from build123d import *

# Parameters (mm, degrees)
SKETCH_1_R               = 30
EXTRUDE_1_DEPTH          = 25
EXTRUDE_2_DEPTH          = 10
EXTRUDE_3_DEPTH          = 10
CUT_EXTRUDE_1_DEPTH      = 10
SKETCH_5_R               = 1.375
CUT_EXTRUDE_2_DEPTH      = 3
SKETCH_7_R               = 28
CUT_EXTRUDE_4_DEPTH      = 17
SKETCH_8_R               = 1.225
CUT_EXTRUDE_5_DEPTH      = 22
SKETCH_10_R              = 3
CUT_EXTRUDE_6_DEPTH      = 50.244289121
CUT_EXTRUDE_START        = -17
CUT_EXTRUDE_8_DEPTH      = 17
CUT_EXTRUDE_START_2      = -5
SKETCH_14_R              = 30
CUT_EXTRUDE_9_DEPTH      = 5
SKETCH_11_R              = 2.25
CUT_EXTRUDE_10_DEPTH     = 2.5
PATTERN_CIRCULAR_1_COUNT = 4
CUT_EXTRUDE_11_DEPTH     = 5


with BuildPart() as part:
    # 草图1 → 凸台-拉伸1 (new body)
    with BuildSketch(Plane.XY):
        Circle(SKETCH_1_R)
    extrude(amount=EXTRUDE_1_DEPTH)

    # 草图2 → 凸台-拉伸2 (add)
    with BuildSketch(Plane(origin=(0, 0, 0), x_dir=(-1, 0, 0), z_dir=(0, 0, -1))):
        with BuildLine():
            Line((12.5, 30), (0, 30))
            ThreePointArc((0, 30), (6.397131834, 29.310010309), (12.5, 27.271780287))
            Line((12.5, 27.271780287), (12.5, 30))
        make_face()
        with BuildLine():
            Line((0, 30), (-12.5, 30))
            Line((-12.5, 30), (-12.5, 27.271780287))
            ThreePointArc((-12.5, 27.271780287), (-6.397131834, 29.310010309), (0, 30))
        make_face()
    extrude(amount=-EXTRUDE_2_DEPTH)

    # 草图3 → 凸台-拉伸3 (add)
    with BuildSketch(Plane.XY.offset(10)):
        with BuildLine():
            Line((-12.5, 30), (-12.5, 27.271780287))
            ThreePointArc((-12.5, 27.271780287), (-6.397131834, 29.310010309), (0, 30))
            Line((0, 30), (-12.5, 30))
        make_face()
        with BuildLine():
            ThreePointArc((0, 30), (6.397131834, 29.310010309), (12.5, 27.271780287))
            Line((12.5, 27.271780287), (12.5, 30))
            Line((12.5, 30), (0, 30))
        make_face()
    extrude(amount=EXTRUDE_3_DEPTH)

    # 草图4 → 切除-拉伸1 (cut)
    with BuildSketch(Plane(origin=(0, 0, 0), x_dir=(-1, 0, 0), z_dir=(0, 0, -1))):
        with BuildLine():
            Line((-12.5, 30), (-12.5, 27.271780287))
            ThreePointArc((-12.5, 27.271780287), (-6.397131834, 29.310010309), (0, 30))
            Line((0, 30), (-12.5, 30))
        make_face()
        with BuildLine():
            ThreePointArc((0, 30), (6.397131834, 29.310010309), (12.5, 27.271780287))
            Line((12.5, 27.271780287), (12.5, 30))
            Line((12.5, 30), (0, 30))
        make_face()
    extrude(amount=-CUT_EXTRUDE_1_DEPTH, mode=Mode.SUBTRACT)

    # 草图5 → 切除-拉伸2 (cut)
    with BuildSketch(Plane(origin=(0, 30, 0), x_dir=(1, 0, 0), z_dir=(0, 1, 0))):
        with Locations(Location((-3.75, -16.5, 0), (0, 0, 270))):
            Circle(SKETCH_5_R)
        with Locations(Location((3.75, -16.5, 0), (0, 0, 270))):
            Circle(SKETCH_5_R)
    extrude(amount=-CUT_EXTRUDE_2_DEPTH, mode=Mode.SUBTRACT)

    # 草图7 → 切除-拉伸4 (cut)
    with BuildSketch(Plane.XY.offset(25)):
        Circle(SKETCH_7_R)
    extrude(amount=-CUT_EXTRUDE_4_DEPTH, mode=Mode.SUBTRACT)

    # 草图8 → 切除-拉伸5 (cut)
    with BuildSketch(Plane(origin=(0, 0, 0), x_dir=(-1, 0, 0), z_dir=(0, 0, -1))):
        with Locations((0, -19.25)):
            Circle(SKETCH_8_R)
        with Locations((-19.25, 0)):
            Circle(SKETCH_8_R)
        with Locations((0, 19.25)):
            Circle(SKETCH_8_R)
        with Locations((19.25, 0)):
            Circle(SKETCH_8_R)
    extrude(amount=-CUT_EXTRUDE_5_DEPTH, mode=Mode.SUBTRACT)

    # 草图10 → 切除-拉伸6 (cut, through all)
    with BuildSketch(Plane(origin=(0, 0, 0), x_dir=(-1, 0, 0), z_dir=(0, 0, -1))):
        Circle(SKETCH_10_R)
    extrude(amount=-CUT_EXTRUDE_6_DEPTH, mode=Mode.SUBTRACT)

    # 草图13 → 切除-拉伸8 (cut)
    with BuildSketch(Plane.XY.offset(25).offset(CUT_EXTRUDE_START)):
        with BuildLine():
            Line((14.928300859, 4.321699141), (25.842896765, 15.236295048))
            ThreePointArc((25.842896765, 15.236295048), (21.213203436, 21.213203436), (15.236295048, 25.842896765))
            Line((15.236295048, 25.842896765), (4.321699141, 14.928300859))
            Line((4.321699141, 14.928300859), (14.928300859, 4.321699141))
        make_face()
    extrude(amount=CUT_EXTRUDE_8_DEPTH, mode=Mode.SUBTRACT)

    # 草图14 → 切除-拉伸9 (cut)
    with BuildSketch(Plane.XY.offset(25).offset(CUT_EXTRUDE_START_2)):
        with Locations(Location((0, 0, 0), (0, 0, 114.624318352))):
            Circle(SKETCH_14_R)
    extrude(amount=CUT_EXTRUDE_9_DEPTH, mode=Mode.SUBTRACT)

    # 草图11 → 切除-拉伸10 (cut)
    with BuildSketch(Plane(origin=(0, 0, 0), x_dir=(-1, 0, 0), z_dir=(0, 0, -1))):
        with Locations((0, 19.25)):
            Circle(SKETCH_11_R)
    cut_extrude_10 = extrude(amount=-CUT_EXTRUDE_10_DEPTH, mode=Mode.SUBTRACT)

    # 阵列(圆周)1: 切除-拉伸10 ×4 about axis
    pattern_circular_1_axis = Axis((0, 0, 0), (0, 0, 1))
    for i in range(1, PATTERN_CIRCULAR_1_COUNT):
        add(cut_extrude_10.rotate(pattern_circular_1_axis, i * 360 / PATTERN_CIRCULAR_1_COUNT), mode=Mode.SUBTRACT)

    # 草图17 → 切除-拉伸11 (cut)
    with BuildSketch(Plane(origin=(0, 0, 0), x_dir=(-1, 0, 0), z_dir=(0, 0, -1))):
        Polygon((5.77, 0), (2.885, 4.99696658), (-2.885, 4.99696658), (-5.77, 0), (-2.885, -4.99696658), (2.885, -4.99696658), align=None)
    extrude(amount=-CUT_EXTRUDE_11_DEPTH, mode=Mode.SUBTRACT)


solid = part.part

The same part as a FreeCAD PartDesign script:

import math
import FreeCAD as App
import Part
import Sketcher
from FreeCAD import Vector
Q = App.Units.Quantity

doc = App.newDocument("Part")
body = doc.addObject("PartDesign::Body", "Body")

# Sketch on XY plane
sketch1 = doc.addObject("Sketcher::SketchObject", "Sketch")
body.addObject(sketch1)
sketch1.AttachmentSupport = (doc.XY_Plane, [""])
sketch1.MapMode = "FlatFace"
sketch1.addGeometry(Part.Circle(Vector(0, 0, 0), Vector(0, 0, 1), 30), False)
sketch1.addConstraint([
    Sketcher.Constraint("Coincident", 0, 3, -1, 1),
    Sketcher.Constraint("Diameter", 0, Q("60 mm")),
])
pad1 = doc.addObject("PartDesign::Pad", "Pad")
body.addObject(pad1)
pad1.Profile = sketch1
pad1.Length = 25

# Sketch on XY plane
sketch2 = doc.addObject("Sketcher::SketchObject", "Sketch001")
body.addObject(sketch2)
sketch2.AttachmentSupport = (doc.XY_Plane, [""])
sketch2.MapMode = "FlatFace"
sketch2.addGeometry([
    Part.LineSegment(Vector(-12.5, 30, 0), Vector(0, 30, 0)),  # 0
    Part.ArcOfCircle(Part.Circle(Vector(0, 0, 0), Vector(0, 0, 1), 30), math.radians(90), math.radians(114.624318)),  # 1
    Part.LineSegment(Vector(-12.5, 27.27178, 0), Vector(-12.5, 30, 0)),  # 2
    Part.LineSegment(Vector(0, 30, 0), Vector(12.5, 30, 0)),  # 3
    Part.LineSegment(Vector(12.5, 30, 0), Vector(12.5, 27.27178, 0)),  # 4
    Part.ArcOfCircle(Part.Circle(Vector(0, 0, 0), Vector(0, 0, 1), 30), math.radians(65.375682), math.radians(90)),  # 5
], False)
sketch2.addConstraint([
    Sketcher.Constraint("Tangent", 0, 2, 1, 1),
    Sketcher.Constraint("Coincident", 1, 2, 2, 1),
    Sketcher.Constraint("Coincident", 2, 2, 0, 1),
    Sketcher.Constraint("Coincident", 3, 2, 4, 1),
    Sketcher.Constraint("Coincident", 4, 2, 5, 1),
    Sketcher.Constraint("Tangent", 5, 2, 3, 1),
    Sketcher.Constraint("Horizontal", 0),
    Sketcher.Constraint("Vertical", 2),
    Sketcher.Constraint("Horizontal", 3),
    Sketcher.Constraint("Vertical", 4),
    Sketcher.Constraint("Coincident", 1, 3, -1, 1),
    Sketcher.Constraint("Coincident", 5, 3, -1, 1),
    Sketcher.Constraint("Equal", 1, 5),
    Sketcher.Constraint("Horizontal", 1, 2, 4, 2),
    Sketcher.Constraint("Radius", 1, Q("30 mm")),
    Sketcher.Constraint("DistanceX", 0, 1, 0, 2, Q("12.5 mm")),
])
pad2 = doc.addObject("PartDesign::Pad", "Pad001")
body.addObject(pad2)
pad2.Profile = sketch2
pad2.Length = 10

# Sketch on XY plane
sketch3 = doc.addObject("Sketcher::SketchObject", "Sketch002")
body.addObject(sketch3)
sketch3.AttachmentSupport = (doc.XY_Plane, [""])
sketch3.MapMode = "FlatFace"
sketch3.AttachmentOffset = App.Placement(Vector(0, 0, 10), App.Rotation())
sketch3.addGeometry([
    Part.LineSegment(Vector(-12.5, 30, 0), Vector(-12.5, 27.27178, 0)),  # 0
    Part.ArcOfCircle(Part.Circle(Vector(0, 0, 0), Vector(0, 0, 1), 30), math.radians(90), math.radians(114.624318)),  # 1
    Part.LineSegment(Vector(0, 30, 0), Vector(-12.5, 30, 0)),  # 2
    Part.ArcOfCircle(Part.Circle(Vector(0, 0, 0), Vector(0, 0, 1), 30), math.radians(65.375682), math.radians(90)),  # 3
    Part.LineSegment(Vector(12.5, 27.27178, 0), Vector(12.5, 30, 0)),  # 4
    Part.LineSegment(Vector(12.5, 30, 0), Vector(0, 30, 0)),  # 5
], False)
sketch3.addConstraint([
    Sketcher.Constraint("Coincident", 0, 2, 1, 2),
    Sketcher.Constraint("Tangent", 1, 1, 2, 1),
    Sketcher.Constraint("Coincident", 2, 2, 0, 1),
    Sketcher.Constraint("Coincident", 3, 1, 4, 1),
    Sketcher.Constraint("Coincident", 4, 2, 5, 1),
    Sketcher.Constraint("Tangent", 5, 2, 3, 2),
    Sketcher.Constraint("Vertical", 0),
    Sketcher.Constraint("Horizontal", 2),
    Sketcher.Constraint("Vertical", 4),
    Sketcher.Constraint("Horizontal", 5),
    Sketcher.Constraint("Coincident", 1, 3, -1, 1),
    Sketcher.Constraint("Coincident", 3, 3, -1, 1),
    Sketcher.Constraint("Equal", 1, 3),
    Sketcher.Constraint("Horizontal", 0, 2, 3, 1),
    Sketcher.Constraint("Radius", 1, Q("30 mm")),
    Sketcher.Constraint("DistanceX", 2, 2, 2, 1, Q("12.5 mm")),
])
pad3 = doc.addObject("PartDesign::Pad", "Pad002")
body.addObject(pad3)
pad3.Profile = sketch3
pad3.Length = 10

# Sketch on XY plane
sketch4 = doc.addObject("Sketcher::SketchObject", "Sketch003")
body.addObject(sketch4)
sketch4.AttachmentSupport = (doc.XY_Plane, [""])
sketch4.MapMode = "FlatFace"
sketch4.addGeometry([
    Part.LineSegment(Vector(12.5, 30, 0), Vector(12.5, 27.27178, 0)),  # 0
    Part.ArcOfCircle(Part.Circle(Vector(0, 0, 0), Vector(0, 0, 1), 30), math.radians(65.375682), math.radians(90)),  # 1
    Part.LineSegment(Vector(0, 30, 0), Vector(12.5, 30, 0)),  # 2
    Part.ArcOfCircle(Part.Circle(Vector(0, 0, 0), Vector(0, 0, 1), 30), math.radians(90), math.radians(114.624318)),  # 3
    Part.LineSegment(Vector(-12.5, 27.27178, 0), Vector(-12.5, 30, 0)),  # 4
    Part.LineSegment(Vector(-12.5, 30, 0), Vector(0, 30, 0)),  # 5
], False)
sketch4.addConstraint([
    Sketcher.Constraint("Coincident", 0, 2, 1, 1),
    Sketcher.Constraint("Tangent", 1, 2, 2, 1),
    Sketcher.Constraint("Coincident", 2, 2, 0, 1),
    Sketcher.Constraint("Coincident", 3, 2, 4, 1),
    Sketcher.Constraint("Coincident", 4, 2, 5, 1),
    Sketcher.Constraint("Tangent", 5, 2, 3, 1),
    Sketcher.Constraint("Vertical", 0),
    Sketcher.Constraint("Horizontal", 2),
    Sketcher.Constraint("Vertical", 4),
    Sketcher.Constraint("Horizontal", 5),
    Sketcher.Constraint("Coincident", 1, 3, -1, 1),
    Sketcher.Constraint("Coincident", 3, 3, -1, 1),
    Sketcher.Constraint("Equal", 1, 3),
    Sketcher.Constraint("Horizontal", 0, 2, 3, 2),
    Sketcher.Constraint("Radius", 1, Q("30 mm")),
    Sketcher.Constraint("DistanceX", 2, 1, 2, 2, Q("12.5 mm")),
])
pocket1 = doc.addObject("PartDesign::Pocket", "Pocket")
body.addObject(pocket1)
pocket1.Profile = sketch4
pocket1.Length = 10
pocket1.Reversed = True

# Sketch on XZ plane
sketch5 = doc.addObject("Sketcher::SketchObject", "Sketch004")
body.addObject(sketch5)
sketch5.AttachmentSupport = (doc.XZ_Plane, [""])
sketch5.MapMode = "FlatFace"
sketch5.AttachmentOffset = App.Placement(Vector(0, 0, -30), App.Rotation())
sketch5.addGeometry([
    Part.Circle(Vector(-3.75, 16.5, 0), Vector(0, 0, 1), 1.375),
    Part.Circle(Vector(3.75, 16.5, 0), Vector(0, 0, 1), 1.375),
], False)
sketch5.addConstraint([
    Sketcher.Constraint("Equal", 0, 1),
    Sketcher.Constraint("Symmetric", 0, 3, 1, 3, -2),
    Sketcher.Constraint("Diameter", 0, Q("2.75 mm")),
    Sketcher.Constraint("DistanceY", -1, 1, 0, 3, Q("16.5 mm")),
    Sketcher.Constraint("DistanceX", 0, 3, 1, 3, Q("7.5 mm")),
])
pocket2 = doc.addObject("PartDesign::Pocket", "Pocket001")
body.addObject(pocket2)
pocket2.Profile = sketch5
pocket2.Length = 3
pocket2.Reversed = True

# Sketch on XY plane
sketch6 = doc.addObject("Sketcher::SketchObject", "Sketch005")
body.addObject(sketch6)
sketch6.AttachmentSupport = (doc.XY_Plane, [""])
sketch6.MapMode = "FlatFace"
sketch6.AttachmentOffset = App.Placement(Vector(0, 0, 25), App.Rotation())
sketch6.addGeometry(Part.Circle(Vector(0, 0, 0), Vector(0, 0, 1), 28), False)
sketch6.addConstraint([
    Sketcher.Constraint("Coincident", 0, 3, -1, 1),
    Sketcher.Constraint("Diameter", 0, Q("56 mm")),
])
pocket3 = doc.addObject("PartDesign::Pocket", "Pocket002")
body.addObject(pocket3)
pocket3.Profile = sketch6
pocket3.Length = 17

# Sketch on XY plane
sketch7 = doc.addObject("Sketcher::SketchObject", "Sketch006")
body.addObject(sketch7)
sketch7.AttachmentSupport = (doc.XY_Plane, [""])
sketch7.MapMode = "FlatFace"
sketch7.addGeometry([
    Part.Circle(Vector(0, -19.25, 0), Vector(0, 0, 1), 1.225),
    Part.Circle(Vector(19.25, 0, 0), Vector(0, 0, 1), 1.225),
    Part.Circle(Vector(0, 19.25, 0), Vector(0, 0, 1), 1.225),
    Part.Circle(Vector(-19.25, 0, 0), Vector(0, 0, 1), 1.225),
], False)
sketch7.addConstraint([
    Sketcher.Constraint("Equal", 0, 1),
    Sketcher.Constraint("Equal", 1, 2),
    Sketcher.Constraint("Equal", 2, 3),
    Sketcher.Constraint("Symmetric", 0, 3, 2, 3, -1, 1),
    Sketcher.Constraint("Symmetric", 1, 3, 3, 3, -1, 1),
    Sketcher.Constraint("PointOnObject", 0, 3, -2),
    Sketcher.Constraint("PointOnObject", 1, 3, -1),
    Sketcher.Constraint("Diameter", 0, Q("2.45 mm")),
    Sketcher.Constraint("DistanceY", 0, 3, 2, 3, Q("38.5 mm")),
    Sketcher.Constraint("DistanceX", 3, 3, 1, 3, Q("38.5 mm")),
])
pocket4 = doc.addObject("PartDesign::Pocket", "Pocket003")
body.addObject(pocket4)
pocket4.Profile = sketch7
pocket4.Length = 22
pocket4.Reversed = True

# Sketch on XY plane
sketch8 = doc.addObject("Sketcher::SketchObject", "Sketch007")
body.addObject(sketch8)
sketch8.AttachmentSupport = (doc.XY_Plane, [""])
sketch8.MapMode = "FlatFace"
sketch8.addGeometry(Part.Circle(Vector(0, 0, 0), Vector(0, 0, 1), 3), False)
sketch8.addConstraint([
    Sketcher.Constraint("Coincident", 0, 3, -1, 1),
    Sketcher.Constraint("Diameter", 0, Q("6 mm")),
])
pocket5 = doc.addObject("PartDesign::Pocket", "Pocket004")
body.addObject(pocket5)
pocket5.Profile = sketch8
pocket5.Type = "ThroughAll"
pocket5.Reversed = True

# Sketch on XY plane
sketch9 = doc.addObject("Sketcher::SketchObject", "Sketch008")
body.addObject(sketch9)
sketch9.AttachmentSupport = (doc.XY_Plane, [""])
sketch9.MapMode = "FlatFace"
sketch9.AttachmentOffset = App.Placement(Vector(0, 0, 8), App.Rotation())
sketch9.addGeometry([
    Part.LineSegment(Vector(14.928301, 4.321699, 0), Vector(25.842897, 15.236295, 0)),
    Part.ArcOfCircle(Part.Circle(Vector(0, 0, 0), Vector(0, 0, 1), 30), math.radians(30.522488), math.radians(59.477512)),
    Part.LineSegment(Vector(15.236295, 25.842897, 0), Vector(4.321699, 14.928301, 0)),
    Part.LineSegment(Vector(4.321699, 14.928301, 0), Vector(14.928301, 4.321699, 0)),
], False)
sketch9.addConstraint([
    Sketcher.Constraint("Coincident", 0, 2, 1, 1),
    Sketcher.Constraint("Coincident", 1, 2, 2, 1),
    Sketcher.Constraint("Coincident", 2, 2, 3, 1),
    Sketcher.Constraint("Coincident", 3, 2, 0, 1),
    Sketcher.Constraint("Coincident", 1, 3, -1, 1),
    Sketcher.Constraint("Parallel", 0, 2),
    Sketcher.Constraint("Perpendicular", 2, 3),
    Sketcher.Constraint("Equal", 0, 2),
    Sketcher.Constraint("Radius", 1, Q("30 mm")),
    Sketcher.Constraint("Angle", 0, Q("45 deg")),
    Sketcher.Constraint("Distance", 3, Q("15 mm")),
    Sketcher.Constraint("DistanceX", -1, 1, 2, 2, Q("4.321699 mm")),
])
pocket6 = doc.addObject("PartDesign::Pocket", "Pocket005")
body.addObject(pocket6)
pocket6.Profile = sketch9
pocket6.Length = 17
pocket6.Reversed = True

# Sketch on XY plane
sketch10 = doc.addObject("Sketcher::SketchObject", "Sketch009")
body.addObject(sketch10)
sketch10.AttachmentSupport = (doc.XY_Plane, [""])
sketch10.MapMode = "FlatFace"
sketch10.AttachmentOffset = App.Placement(Vector(0, 0, 20), App.Rotation())
sketch10.addGeometry(Part.Circle(Vector(0, 0, 0), Vector(0, 0, 1), 30), False)
sketch10.addConstraint([
    Sketcher.Constraint("Coincident", 0, 3, -1, 1),
    Sketcher.Constraint("Diameter", 0, Q("60 mm")),
])
pocket7 = doc.addObject("PartDesign::Pocket", "Pocket006")
body.addObject(pocket7)
pocket7.Profile = sketch10
pocket7.Length = 5
pocket7.Reversed = True

# Sketch on XY plane
sketch11 = doc.addObject("Sketcher::SketchObject", "Sketch010")
body.addObject(sketch11)
sketch11.AttachmentSupport = (doc.XY_Plane, [""])
sketch11.MapMode = "FlatFace"
sketch11.addGeometry(Part.Circle(Vector(0, 19.25, 0), Vector(0, 0, 1), 2.25), False)
sketch11.addConstraint([
    Sketcher.Constraint("PointOnObject", 0, 3, -2),
    Sketcher.Constraint("Diameter", 0, Q("4.5 mm")),
    Sketcher.Constraint("DistanceY", -1, 1, 0, 3, Q("19.25 mm")),
])
pocket8 = doc.addObject("PartDesign::Pocket", "Pocket007")
body.addObject(pocket8)
pocket8.Profile = sketch11
pocket8.Length = 2.5
pocket8.Reversed = True
doc.recompute()

polarpattern = doc.addObject("PartDesign::PolarPattern", "PolarPattern")
body.addObject(polarpattern)
polarpattern.Originals = [pocket8]
polarpattern.Axis = (doc.Z_Axis, [""])
polarpattern.Angle = 360
polarpattern.Occurrences = 4
body.Tip = polarpattern

# Sketch on XY plane
sketch12 = doc.addObject("Sketcher::SketchObject", "Sketch011")
body.addObject(sketch12)
sketch12.AttachmentSupport = (doc.XY_Plane, [""])
sketch12.MapMode = "FlatFace"
sketch12.addGeometry([
    Part.LineSegment(Vector(-5.77, 0, 0), Vector(-2.885, 4.996967, 0)),  # 0
    Part.LineSegment(Vector(-2.885, 4.996967, 0), Vector(2.885, 4.996967, 0)),  # 1
    Part.LineSegment(Vector(2.885, 4.996967, 0), Vector(5.77, 0, 0)),  # 2
    Part.LineSegment(Vector(5.77, 0, 0), Vector(2.885, -4.996967, 0)),  # 3
    Part.LineSegment(Vector(2.885, -4.996967, 0), Vector(-2.885, -4.996967, 0)),  # 4
    Part.LineSegment(Vector(-2.885, -4.996967, 0), Vector(-5.77, 0, 0)),  # 5
], False)
sketch12.addConstraint([
    Sketcher.Constraint("Coincident", 0, 2, 1, 1),
    Sketcher.Constraint("Coincident", 1, 2, 2, 1),
    Sketcher.Constraint("Coincident", 2, 2, 3, 1),
    Sketcher.Constraint("Coincident", 3, 2, 4, 1),
    Sketcher.Constraint("Coincident", 4, 2, 5, 1),
    Sketcher.Constraint("Coincident", 5, 2, 0, 1),
    Sketcher.Constraint("Horizontal", 1),
    Sketcher.Constraint("Horizontal", 4),
    Sketcher.Constraint("Symmetric", 0, 2, 3, 2, -1, 1),
    Sketcher.Constraint("Symmetric", 2, 2, 5, 2, -1, 1),
    Sketcher.Constraint("PointOnObject", 2, 2, -1),
    Sketcher.Constraint("Parallel", 2, 5),
    Sketcher.Constraint("Vertical", 1, 2, 3, 2),
    Sketcher.Constraint("Angle", 0, Q("60 deg")),
    Sketcher.Constraint("DistanceX", 1, 1, 1, 2, Q("5.77 mm")),
    Sketcher.Constraint("Distance", 0, Q("5.77 mm")),
])
pocket9 = doc.addObject("PartDesign::Pocket", "Pocket008")
body.addObject(pocket9)
pocket9.Profile = sketch12
pocket9.Length = 5
pocket9.Reversed = True

doc.recompute()
